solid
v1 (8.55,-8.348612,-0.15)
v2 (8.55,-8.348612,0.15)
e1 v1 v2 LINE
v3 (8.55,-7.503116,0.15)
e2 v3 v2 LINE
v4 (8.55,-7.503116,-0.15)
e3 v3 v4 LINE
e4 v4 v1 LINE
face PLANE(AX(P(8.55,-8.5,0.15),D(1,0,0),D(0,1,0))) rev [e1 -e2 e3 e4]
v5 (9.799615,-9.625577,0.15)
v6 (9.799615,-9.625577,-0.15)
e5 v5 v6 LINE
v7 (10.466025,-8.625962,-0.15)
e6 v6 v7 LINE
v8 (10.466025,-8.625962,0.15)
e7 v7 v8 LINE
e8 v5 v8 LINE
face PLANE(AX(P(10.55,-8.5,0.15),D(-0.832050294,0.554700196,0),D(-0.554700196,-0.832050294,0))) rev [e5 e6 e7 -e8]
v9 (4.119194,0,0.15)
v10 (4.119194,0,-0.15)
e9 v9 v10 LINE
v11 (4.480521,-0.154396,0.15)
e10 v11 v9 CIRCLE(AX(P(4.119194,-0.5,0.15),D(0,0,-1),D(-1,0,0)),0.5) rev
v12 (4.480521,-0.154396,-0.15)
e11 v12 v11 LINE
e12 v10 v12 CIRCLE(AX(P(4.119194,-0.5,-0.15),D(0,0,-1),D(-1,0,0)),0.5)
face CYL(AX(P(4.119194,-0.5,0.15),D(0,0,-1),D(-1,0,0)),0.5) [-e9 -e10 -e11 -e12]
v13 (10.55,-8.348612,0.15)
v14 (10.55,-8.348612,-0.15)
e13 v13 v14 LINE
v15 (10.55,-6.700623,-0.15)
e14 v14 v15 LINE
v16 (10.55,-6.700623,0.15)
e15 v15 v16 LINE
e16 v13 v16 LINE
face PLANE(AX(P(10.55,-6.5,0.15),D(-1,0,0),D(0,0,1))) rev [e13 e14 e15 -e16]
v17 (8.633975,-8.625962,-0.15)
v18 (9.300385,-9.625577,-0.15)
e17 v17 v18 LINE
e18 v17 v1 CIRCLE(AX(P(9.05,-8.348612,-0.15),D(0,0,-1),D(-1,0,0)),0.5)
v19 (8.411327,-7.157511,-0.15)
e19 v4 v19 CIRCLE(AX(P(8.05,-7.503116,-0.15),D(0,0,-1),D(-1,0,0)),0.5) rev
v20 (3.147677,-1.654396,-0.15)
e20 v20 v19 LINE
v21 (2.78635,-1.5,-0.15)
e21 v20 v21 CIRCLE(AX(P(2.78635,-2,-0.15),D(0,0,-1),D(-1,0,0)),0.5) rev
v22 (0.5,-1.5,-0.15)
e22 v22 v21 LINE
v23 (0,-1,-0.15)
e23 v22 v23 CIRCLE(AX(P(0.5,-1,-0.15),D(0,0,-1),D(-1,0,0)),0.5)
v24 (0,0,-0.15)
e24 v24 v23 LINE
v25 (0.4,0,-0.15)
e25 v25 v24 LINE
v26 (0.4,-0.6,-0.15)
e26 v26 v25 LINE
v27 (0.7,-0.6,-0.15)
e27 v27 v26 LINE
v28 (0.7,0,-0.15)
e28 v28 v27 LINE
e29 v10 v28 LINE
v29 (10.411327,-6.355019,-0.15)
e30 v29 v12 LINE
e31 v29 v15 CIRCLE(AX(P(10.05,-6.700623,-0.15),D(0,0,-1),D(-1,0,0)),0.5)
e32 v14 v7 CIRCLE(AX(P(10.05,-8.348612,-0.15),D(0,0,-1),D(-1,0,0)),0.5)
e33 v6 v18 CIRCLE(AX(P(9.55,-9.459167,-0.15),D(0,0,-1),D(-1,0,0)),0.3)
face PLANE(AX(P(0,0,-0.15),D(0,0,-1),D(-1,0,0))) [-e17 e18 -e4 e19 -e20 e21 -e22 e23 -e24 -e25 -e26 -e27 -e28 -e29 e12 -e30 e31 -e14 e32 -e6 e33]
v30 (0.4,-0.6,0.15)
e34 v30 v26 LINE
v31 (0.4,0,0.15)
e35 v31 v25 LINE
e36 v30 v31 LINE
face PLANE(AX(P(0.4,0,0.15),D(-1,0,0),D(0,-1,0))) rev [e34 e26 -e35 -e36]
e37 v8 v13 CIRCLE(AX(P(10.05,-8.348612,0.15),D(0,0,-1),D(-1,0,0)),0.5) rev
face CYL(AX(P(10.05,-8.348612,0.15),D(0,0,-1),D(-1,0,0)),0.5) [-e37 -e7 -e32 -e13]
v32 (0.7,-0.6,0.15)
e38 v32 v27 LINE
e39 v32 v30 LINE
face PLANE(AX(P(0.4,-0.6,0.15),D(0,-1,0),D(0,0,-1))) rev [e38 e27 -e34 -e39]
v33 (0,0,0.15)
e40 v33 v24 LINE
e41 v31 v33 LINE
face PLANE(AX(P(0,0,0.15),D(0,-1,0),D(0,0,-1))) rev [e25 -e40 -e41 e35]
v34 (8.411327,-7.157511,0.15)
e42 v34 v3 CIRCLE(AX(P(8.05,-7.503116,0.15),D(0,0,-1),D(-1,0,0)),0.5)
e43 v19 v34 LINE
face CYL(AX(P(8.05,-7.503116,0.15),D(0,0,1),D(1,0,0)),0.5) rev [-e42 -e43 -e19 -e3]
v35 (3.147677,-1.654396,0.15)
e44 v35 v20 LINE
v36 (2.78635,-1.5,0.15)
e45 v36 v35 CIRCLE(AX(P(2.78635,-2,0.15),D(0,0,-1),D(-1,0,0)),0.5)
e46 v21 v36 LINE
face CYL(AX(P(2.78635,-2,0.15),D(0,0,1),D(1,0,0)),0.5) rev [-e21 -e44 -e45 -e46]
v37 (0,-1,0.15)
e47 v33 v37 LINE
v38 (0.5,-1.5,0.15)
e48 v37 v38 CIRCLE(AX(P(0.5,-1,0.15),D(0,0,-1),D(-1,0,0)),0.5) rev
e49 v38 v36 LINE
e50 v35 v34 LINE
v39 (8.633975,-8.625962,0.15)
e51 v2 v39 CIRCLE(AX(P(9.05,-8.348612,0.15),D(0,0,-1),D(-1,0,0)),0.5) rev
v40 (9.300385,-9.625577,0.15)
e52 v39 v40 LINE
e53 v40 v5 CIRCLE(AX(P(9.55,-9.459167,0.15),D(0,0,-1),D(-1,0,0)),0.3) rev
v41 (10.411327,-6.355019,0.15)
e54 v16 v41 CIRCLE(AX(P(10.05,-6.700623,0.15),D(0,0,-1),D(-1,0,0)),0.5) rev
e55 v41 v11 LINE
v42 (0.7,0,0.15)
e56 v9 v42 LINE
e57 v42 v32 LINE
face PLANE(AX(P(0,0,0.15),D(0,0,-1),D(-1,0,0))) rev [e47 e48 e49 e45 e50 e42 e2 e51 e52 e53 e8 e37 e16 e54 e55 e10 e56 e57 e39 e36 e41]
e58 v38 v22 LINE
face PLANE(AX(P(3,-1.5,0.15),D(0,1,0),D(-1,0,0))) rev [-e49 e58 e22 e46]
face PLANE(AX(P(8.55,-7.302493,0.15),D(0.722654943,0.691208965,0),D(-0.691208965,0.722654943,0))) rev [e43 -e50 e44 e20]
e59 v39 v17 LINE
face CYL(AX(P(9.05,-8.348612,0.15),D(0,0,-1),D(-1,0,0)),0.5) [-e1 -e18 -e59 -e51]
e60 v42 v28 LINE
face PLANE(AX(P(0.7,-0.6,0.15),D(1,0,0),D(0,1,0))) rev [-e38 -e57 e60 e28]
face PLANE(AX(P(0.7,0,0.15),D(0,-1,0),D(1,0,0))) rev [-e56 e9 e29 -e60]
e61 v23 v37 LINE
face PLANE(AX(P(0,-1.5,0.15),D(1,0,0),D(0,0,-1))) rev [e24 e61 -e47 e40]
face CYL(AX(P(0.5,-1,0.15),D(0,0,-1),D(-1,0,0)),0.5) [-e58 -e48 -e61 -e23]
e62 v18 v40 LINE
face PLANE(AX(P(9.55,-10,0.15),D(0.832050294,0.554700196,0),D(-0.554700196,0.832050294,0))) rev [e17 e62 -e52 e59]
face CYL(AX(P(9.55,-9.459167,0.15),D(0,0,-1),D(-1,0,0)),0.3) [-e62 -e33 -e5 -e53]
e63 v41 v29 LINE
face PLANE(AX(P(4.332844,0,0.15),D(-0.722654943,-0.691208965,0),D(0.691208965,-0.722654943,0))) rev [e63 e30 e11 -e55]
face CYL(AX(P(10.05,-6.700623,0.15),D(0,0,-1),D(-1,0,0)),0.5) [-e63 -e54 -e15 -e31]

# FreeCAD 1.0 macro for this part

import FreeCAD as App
import Part
import Sketcher

V = App.Vector
Q = App.Units.Quantity


def edges_at(feature, points):
    """Names of the edges that pass closest to the given points."""
    edges = feature.Shape.Edges
    near = lambda p: min(range(len(edges)), key=lambda i: edges[i].distToShape(Part.Vertex(*p))[0])
    return sorted({f"Edge{near(p) + 1}" for p in points})


def add_polygon(sketch, points):
    """Adds a closed chain of lines whose ends are joined by coincident constraints."""
    first, n = sketch.GeometryCount, len(points)
    for a, b in zip(points, points[1:] + points[:1]):
        sketch.addGeometry(Part.LineSegment(App.Vector(*a, 0), App.Vector(*b, 0)), False)
    for i in range(n):
        sketch.addConstraint(Sketcher.Constraint("Coincident", first + i, 2, first + (i + 1) % n, 1))

doc = App.newDocument("Part")
body = doc.addObject("PartDesign::Body", "Body")

sketch1 = body.newObject("Sketcher::SketchObject", "Sketch")
sketch1.AttachmentSupport = (doc.getObject("XY_Plane"), [""])
sketch1.MapMode = "FlatFace"
add_polygon(sketch1, [(0.4, 0), (0, 0), (0, -1.5), (3, -1.5), (8.55, -7.302493), (8.55, -8.5), (9.55, -10), (10.55, -8.5), (10.55, -6.5), (4.332844, 0), (0.7, 0), (0.7, -0.6), (0.4, -0.6)])
sketch1.addConstraint(Sketcher.Constraint("Horizontal", 0))
sketch1.addConstraint(Sketcher.Constraint("Vertical", 1))
sketch1.addConstraint(Sketcher.Constraint("Horizontal", 2))
sketch1.addConstraint(Sketcher.Constraint("Vertical", 4))
sketch1.addConstraint(Sketcher.Constraint("Vertical", 7))
sketch1.addConstraint(Sketcher.Constraint("Horizontal", 9))
sketch1.addConstraint(Sketcher.Constraint("Vertical", 10))
sketch1.addConstraint(Sketcher.Constraint("Horizontal", 11))
sketch1.addConstraint(Sketcher.Constraint("Vertical", 12))
sketch1.addConstraint(Sketcher.Constraint("Coincident", 0, 2, -1, 1))
sketch1.addConstraint(Sketcher.Constraint("PointOnObject", 8, 2, -1))
sketch1.addConstraint(Sketcher.Constraint("Parallel", 3, 8))
sketch1.addConstraint(Sketcher.Constraint("Horizontal", 4, 2, 6, 2))
sketch1.addConstraint(Sketcher.Constraint("Equal", 5, 6))
sketch1.addConstraint(Sketcher.Constraint("DistanceX", 2, 1, 2, 2, Q("3 mm")))
sketch1.addConstraint(Sketcher.Constraint("DistanceY", 7, 1, 7, 2, Q("2 mm")))
sketch1.addConstraint(Sketcher.Constraint("DistanceX", 0, 2, 0, 1, Q("0.4 mm")))
sketch1.addConstraint(Sketcher.Constraint("DistanceX", 11, 2, 11, 1, Q("0.3 mm")))
sketch1.addConstraint(Sketcher.Constraint("DistanceY", 1, 2, 1, 1, Q("1.5 mm")))
sketch1.addConstraint(Sketcher.Constraint("DistanceY", 10, 2, 10, 1, Q("0.6 mm")))
sketch1.addConstraint(Sketcher.Constraint("DistanceY", 5, 2, -1, 1, Q("10 mm")))
sketch1.addConstraint(Sketcher.Constraint("DistanceY", 4, 2, 2, 2, Q("7 mm")))
sketch1.addConstraint(Sketcher.Constraint("DistanceX", 4, 2, 5, 2, Q("1 mm")))
sketch1.addConstraint(Sketcher.Constraint("DistanceX", -1, 1, 3, 2, Q("8.55 mm")))
sketch1.addConstraint(Sketcher.Constraint("Distance", 3, Q("8.02941 mm")))
pad1 = body.newObject("PartDesign::Pad", "Pad")
pad1.Profile = sketch1
pad1.Length = 0.3
pad1.Midplane = True
doc.recompute()

fillet = body.newObject("PartDesign::Fillet", "Fillet")
fillet.Base = (pad1, edges_at(pad1, [(9.55, -10, 0)]))
fillet.Radius = 0.3
doc.recompute()

fillet2 = body.newObject("PartDesign::Fillet", "Fillet001")
fillet2.Base = (fillet, edges_at(fillet, [
    (4.333, 0, 0),
    (10.55, -6.5, 0),
    (10.55, -8.5, 0),
    (8.55, -8.5, 0),
    (8.55, -7.302, 0),
    (3, -1.5, 0),
    (0, -1.5, 0),
]))
fillet2.Radius = 0.5

doc.recompute()
